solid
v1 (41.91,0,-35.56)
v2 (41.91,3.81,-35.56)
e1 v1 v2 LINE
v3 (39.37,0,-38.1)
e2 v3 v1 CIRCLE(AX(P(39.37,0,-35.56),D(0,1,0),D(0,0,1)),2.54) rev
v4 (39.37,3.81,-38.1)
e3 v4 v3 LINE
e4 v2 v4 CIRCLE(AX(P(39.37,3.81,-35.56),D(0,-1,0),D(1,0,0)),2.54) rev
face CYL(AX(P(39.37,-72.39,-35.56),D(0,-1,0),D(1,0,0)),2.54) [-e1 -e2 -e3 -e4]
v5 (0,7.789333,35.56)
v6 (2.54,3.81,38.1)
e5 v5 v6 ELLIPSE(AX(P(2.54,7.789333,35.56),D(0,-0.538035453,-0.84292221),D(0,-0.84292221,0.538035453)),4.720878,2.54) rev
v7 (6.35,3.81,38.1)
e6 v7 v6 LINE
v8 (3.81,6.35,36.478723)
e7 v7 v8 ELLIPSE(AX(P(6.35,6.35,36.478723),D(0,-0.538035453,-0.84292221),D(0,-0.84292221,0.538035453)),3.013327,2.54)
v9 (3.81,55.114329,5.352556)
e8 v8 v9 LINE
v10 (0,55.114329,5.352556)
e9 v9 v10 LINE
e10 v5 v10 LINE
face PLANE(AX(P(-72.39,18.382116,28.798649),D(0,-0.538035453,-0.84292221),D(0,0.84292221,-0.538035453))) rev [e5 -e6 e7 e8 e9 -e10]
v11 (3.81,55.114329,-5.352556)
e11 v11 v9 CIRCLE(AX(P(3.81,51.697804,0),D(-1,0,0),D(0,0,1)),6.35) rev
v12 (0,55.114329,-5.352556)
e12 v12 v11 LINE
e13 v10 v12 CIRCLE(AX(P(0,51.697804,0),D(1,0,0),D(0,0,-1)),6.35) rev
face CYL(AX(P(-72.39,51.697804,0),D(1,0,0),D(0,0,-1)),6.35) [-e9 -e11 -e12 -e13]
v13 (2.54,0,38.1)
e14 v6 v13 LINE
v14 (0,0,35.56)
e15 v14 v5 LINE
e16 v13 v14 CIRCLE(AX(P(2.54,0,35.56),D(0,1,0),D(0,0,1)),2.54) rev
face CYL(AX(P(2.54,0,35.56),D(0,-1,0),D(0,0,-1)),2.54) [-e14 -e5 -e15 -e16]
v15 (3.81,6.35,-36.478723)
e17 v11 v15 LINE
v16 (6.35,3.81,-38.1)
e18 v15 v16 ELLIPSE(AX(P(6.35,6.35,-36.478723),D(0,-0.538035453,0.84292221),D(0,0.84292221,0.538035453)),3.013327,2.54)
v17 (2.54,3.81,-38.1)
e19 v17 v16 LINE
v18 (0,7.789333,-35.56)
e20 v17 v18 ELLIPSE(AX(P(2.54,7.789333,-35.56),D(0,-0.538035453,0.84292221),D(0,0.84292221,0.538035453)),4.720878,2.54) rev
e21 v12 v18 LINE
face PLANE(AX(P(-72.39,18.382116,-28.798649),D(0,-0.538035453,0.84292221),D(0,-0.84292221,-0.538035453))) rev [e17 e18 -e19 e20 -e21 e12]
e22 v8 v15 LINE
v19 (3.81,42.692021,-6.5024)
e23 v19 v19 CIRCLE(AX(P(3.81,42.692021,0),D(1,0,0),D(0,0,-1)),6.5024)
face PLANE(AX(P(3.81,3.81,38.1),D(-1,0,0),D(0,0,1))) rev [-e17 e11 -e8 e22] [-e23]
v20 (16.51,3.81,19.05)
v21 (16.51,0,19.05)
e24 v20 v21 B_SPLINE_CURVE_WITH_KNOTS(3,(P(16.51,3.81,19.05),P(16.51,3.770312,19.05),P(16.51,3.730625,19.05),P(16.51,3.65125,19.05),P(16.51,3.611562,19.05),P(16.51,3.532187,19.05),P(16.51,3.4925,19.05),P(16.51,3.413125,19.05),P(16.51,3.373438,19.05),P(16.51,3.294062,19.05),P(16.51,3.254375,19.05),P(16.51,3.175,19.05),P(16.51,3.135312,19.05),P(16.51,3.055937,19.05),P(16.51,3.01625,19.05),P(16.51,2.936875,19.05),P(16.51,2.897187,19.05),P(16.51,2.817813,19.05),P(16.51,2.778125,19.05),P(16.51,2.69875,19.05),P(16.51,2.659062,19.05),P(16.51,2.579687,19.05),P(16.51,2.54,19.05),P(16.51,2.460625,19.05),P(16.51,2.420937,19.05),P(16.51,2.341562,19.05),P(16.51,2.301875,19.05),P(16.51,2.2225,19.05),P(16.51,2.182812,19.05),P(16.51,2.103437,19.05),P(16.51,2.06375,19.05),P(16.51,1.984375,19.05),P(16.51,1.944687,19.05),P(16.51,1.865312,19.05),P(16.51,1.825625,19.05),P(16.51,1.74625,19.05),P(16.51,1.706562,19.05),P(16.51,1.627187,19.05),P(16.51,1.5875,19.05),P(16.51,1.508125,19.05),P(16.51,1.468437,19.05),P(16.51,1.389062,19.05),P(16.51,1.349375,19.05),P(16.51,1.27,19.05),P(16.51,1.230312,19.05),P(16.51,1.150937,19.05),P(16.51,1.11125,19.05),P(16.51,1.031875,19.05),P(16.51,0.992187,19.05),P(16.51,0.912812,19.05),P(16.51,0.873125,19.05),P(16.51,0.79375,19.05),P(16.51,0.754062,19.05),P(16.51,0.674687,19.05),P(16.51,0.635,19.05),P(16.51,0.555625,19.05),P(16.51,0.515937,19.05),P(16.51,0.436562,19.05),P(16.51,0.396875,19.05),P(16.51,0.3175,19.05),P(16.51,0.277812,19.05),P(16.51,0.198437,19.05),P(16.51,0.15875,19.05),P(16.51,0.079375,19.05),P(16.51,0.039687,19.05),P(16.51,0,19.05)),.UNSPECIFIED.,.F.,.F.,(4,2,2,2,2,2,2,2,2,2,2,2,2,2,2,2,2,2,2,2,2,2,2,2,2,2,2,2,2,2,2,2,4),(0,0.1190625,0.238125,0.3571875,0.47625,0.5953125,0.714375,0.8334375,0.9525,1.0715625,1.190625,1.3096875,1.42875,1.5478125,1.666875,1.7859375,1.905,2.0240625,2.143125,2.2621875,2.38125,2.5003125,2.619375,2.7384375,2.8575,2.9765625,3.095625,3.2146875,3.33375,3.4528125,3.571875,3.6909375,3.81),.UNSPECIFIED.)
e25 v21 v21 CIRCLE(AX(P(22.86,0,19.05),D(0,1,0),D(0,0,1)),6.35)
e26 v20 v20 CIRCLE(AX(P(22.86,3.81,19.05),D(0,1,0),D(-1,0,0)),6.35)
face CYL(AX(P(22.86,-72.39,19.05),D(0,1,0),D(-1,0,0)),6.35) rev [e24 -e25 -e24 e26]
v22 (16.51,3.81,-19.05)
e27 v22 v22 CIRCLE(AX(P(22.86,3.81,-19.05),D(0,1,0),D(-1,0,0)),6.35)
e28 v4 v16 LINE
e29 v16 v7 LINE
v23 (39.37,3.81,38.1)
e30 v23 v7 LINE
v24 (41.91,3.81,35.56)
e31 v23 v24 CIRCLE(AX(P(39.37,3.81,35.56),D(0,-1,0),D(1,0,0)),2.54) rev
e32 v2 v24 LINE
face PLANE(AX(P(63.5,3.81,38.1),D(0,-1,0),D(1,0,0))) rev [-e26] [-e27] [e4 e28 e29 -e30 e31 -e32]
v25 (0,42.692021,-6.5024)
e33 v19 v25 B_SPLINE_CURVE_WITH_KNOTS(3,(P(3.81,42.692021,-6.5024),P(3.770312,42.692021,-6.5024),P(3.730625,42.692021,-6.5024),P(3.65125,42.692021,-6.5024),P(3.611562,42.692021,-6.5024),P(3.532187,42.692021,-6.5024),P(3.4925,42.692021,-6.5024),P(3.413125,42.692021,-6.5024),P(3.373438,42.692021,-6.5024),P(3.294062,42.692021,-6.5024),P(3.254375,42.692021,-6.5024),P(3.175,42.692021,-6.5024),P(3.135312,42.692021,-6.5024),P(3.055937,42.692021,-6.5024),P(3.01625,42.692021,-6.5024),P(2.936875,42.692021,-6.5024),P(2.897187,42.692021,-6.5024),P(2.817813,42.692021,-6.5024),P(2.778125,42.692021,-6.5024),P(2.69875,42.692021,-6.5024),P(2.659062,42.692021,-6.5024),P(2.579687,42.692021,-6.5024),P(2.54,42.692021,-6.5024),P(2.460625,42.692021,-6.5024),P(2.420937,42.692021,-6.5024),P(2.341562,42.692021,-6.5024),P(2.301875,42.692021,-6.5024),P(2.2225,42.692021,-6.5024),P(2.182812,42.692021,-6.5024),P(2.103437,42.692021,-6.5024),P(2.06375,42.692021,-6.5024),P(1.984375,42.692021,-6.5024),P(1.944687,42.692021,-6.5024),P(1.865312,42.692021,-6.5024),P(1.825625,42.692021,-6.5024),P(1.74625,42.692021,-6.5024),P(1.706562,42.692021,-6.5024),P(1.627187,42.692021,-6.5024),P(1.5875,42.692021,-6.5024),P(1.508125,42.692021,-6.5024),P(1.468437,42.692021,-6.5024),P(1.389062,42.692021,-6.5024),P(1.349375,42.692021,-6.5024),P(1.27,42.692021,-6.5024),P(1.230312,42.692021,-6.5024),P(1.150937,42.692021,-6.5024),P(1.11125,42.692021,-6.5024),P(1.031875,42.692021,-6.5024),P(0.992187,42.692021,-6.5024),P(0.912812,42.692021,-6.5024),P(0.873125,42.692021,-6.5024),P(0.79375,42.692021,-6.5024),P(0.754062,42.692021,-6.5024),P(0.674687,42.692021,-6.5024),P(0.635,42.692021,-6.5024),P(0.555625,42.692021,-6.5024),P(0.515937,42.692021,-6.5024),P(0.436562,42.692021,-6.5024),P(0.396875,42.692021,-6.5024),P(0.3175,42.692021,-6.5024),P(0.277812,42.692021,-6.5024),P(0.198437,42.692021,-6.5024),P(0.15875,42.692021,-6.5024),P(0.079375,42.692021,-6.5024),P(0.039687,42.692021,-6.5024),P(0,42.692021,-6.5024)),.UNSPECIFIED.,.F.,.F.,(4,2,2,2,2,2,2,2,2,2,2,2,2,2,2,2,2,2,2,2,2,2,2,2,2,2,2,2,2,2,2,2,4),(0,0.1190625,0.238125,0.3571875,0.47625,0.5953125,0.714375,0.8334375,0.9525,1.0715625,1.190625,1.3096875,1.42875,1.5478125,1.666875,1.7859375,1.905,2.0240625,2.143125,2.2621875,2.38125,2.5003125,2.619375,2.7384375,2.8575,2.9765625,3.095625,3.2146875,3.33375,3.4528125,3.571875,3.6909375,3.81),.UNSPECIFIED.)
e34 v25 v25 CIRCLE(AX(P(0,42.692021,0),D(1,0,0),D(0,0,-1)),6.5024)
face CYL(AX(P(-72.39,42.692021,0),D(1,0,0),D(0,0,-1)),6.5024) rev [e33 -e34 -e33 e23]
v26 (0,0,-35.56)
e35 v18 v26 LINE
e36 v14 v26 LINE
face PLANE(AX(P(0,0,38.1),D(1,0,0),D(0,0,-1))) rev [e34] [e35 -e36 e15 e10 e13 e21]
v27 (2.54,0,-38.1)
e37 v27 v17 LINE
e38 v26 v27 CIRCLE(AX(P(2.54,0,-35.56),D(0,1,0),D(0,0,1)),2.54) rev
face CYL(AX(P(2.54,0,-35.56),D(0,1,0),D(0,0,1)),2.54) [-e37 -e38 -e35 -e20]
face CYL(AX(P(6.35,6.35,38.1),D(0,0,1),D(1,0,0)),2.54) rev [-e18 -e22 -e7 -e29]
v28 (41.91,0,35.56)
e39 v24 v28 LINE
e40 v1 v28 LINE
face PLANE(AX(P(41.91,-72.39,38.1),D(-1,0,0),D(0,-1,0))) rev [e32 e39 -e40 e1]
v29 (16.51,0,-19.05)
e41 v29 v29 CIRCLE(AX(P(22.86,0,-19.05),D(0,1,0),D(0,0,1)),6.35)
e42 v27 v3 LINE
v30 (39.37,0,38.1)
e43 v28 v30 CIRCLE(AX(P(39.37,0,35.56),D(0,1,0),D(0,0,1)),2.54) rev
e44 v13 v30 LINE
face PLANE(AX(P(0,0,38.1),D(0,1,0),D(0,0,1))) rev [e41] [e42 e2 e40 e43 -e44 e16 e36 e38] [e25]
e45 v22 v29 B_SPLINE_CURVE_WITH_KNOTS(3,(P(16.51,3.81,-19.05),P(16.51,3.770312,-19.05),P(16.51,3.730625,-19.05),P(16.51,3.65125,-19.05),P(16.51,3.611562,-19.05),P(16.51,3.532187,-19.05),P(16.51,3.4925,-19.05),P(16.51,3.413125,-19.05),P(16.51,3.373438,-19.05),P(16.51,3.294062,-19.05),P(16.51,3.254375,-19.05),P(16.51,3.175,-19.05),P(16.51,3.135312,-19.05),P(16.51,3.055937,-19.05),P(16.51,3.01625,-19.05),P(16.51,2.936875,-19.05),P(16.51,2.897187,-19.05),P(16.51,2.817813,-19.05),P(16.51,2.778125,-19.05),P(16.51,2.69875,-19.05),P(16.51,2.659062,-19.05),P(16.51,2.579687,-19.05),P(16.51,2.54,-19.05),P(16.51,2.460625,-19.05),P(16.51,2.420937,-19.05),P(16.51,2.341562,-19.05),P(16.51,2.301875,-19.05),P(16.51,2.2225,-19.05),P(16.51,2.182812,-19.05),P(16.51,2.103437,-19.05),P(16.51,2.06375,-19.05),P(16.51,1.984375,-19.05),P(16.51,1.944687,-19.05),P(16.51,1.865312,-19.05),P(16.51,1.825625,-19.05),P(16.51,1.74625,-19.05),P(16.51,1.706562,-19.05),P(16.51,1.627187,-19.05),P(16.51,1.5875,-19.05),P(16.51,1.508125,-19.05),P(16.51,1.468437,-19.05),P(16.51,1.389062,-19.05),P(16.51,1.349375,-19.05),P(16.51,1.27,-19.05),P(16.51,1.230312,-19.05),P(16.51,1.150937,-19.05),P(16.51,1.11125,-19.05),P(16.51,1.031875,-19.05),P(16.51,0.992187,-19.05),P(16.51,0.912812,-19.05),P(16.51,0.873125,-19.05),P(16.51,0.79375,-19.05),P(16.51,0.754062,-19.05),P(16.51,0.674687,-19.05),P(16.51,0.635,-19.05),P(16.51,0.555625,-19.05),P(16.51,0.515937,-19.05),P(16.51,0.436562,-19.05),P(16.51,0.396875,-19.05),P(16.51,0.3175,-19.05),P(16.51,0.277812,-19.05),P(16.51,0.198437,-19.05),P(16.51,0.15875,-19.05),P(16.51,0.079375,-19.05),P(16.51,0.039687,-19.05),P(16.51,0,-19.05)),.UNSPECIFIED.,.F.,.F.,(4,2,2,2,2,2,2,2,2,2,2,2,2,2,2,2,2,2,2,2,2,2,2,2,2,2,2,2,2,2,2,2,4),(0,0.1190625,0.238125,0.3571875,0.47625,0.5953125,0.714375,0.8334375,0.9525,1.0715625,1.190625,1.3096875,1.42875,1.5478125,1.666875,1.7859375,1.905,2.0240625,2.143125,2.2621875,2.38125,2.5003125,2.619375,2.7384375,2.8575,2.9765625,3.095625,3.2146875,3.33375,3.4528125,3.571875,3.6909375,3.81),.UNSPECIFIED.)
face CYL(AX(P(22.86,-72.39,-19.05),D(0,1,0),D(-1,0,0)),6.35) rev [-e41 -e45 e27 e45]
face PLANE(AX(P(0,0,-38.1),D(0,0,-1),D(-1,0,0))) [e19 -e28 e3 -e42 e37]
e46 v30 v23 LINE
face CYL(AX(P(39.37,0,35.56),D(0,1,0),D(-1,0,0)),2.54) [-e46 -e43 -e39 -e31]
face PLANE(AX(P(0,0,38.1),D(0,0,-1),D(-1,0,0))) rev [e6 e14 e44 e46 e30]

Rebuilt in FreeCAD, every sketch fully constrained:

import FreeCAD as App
import Part
import Sketcher

V = App.Vector
Q = App.Units.Quantity


def edges_at(feature, points):
    """Names of the edges that pass closest to the given points."""
    edges = feature.Shape.Edges
    near = lambda p: min(range(len(edges)), key=lambda i: edges[i].distToShape(Part.Vertex(*p))[0])
    return sorted({f"Edge{near(p) + 1}" for p in points})

doc = App.newDocument("Part")
body = doc.addObject("PartDesign::Body", "Body")

# Sketch on XY plane
sketch1 = body.newObject("Sketcher::SketchObject", "Sketch")
sketch1.AttachmentSupport = (doc.getObject("XY_Plane"), [""])
sketch1.MapMode = "FlatFace"
sketch1.addGeometry(Part.LineSegment(V(0, 63.5, 0), V(0, 0, 0)), False)
sketch1.addGeometry(Part.LineSegment(V(0, 0, 0), V(63.5, 0, 0)), False)
sketch1.addGeometry(Part.LineSegment(V(63.5, 0, 0), V(63.5, 3.8, 0)), False)
sketch1.addGeometry(Part.LineSegment(V(63.5, 3.8, 0), V(3.8, 3.8, 0)), False)
sketch1.addGeometry(Part.LineSegment(V(3.8, 3.8, 0), V(3.8, 63.5, 0)), False)
sketch1.addGeometry(Part.LineSegment(V(3.8, 63.5, 0), V(0, 63.5, 0)), False)
sketch1.addConstraint(Sketcher.Constraint("Coincident", 0, 2, 1, 1))
sketch1.addConstraint(Sketcher.Constraint("Coincident", 1, 2, 2, 1))
sketch1.addConstraint(Sketcher.Constraint("Coincident", 2, 2, 3, 1))
sketch1.addConstraint(Sketcher.Constraint("Coincident", 3, 2, 4, 1))
sketch1.addConstraint(Sketcher.Constraint("Coincident", 4, 2, 5, 1))
sketch1.addConstraint(Sketcher.Constraint("Coincident", 5, 2, 0, 1))
sketch1.addConstraint(Sketcher.Constraint("Vertical", 0))
sketch1.addConstraint(Sketcher.Constraint("Horizontal", 1))
sketch1.addConstraint(Sketcher.Constraint("Vertical", 2))
sketch1.addConstraint(Sketcher.Constraint("Horizontal", 3))
sketch1.addConstraint(Sketcher.Constraint("Vertical", 4))
sketch1.addConstraint(Sketcher.Constraint("Horizontal", 5))
sketch1.addConstraint(Sketcher.Constraint("Coincident", 0, 2, -1, 1))
sketch1.addConstraint(Sketcher.Constraint("Equal", 1, 0))
sketch1.addConstraint(Sketcher.Constraint("Equal", 5, 2))
sketch1.addConstraint(Sketcher.Constraint("DistanceX", 1, 1, 1, 2, Q("2.5 in")))
sketch1.addConstraint(Sketcher.Constraint("DistanceX", 3, 2, 3, 1, Q("2.35 in")))
pad1 = body.newObject("PartDesign::Pad", "Pad")
pad1.Profile = sketch1
pad1.Length = Q("3 in")
pad1.Midplane = True

# Sketch on YZ plane
sketch2 = body.newObject("Sketcher::SketchObject", "Sketch001")
sketch2.AttachmentSupport = (doc.getObject("YZ_Plane"), [""])
sketch2.MapMode = "FlatFace"
sketch2.AttachmentOffset = App.Placement(V(0, 0, 0.15 * 25.4), App.Rotation())
sketch2.addGeometry(Part.LineSegment(V(64, 38, 0), V(4, 38, 0)), False)
sketch2.addGeometry(Part.LineSegment(V(4, 38, 0), V(64, 0, 0)), False)
sketch2.addGeometry(Part.LineSegment(V(64, 0, 0), V(64, 38, 0)), False)
sketch2.addGeometry(Part.LineSegment(V(64, -38, 0), V(64, 0, 0)), False)
sketch2.addGeometry(Part.LineSegment(V(64, 0, 0), V(4, -38, 0)), False)
sketch2.addGeometry(Part.LineSegment(V(4, -38, 0), V(64, -38, 0)), False)
sketch2.addConstraint(Sketcher.Constraint("Coincident", 0, 2, 1, 1))
sketch2.addConstraint(Sketcher.Constraint("Coincident", 1, 2, 2, 1))
sketch2.addConstraint(Sketcher.Constraint("Coincident", 2, 2, 0, 1))
sketch2.addConstraint(Sketcher.Constraint("Coincident", 3, 2, 4, 1))
sketch2.addConstraint(Sketcher.Constraint("Coincident", 4, 2, 5, 1))
sketch2.addConstraint(Sketcher.Constraint("Coincident", 5, 2, 3, 1))
sketch2.addConstraint(Sketcher.Constraint("Horizontal", 0))
sketch2.addConstraint(Sketcher.Constraint("Vertical", 2))
sketch2.addConstraint(Sketcher.Constraint("Vertical", 3))
sketch2.addConstraint(Sketcher.Constraint("Horizontal", 5))
sketch2.addConstraint(Sketcher.Constraint("Coincident", 3, 2, 1, 2))
sketch2.addConstraint(Sketcher.Constraint("Symmetric", 0, 2, 4, 2, -1))
sketch2.addConstraint(Sketcher.Constraint("PointOnObject", 1, 2, -1))
sketch2.addConstraint(Sketcher.Constraint("DistanceY", 2, 1, 2, 2, Q("1.5 in")))
sketch2.addConstraint(Sketcher.Constraint("DistanceX", 0, 2, 0, 1, Q("2.35 in")))
sketch2.addConstraint(Sketcher.Constraint("DistanceX", -1, 1, 1, 2, Q("2.5 in")))
pocket1 = body.newObject("PartDesign::Pocket", "Pocket")
pocket1.Profile = sketch2
pocket1.Length = Q("3 in")
doc.recompute()

fillet = body.newObject("PartDesign::Fillet", "Fillet")
fillet.Base = (pocket1, edges_at(pocket1, [(1.905, 63.5, 0)]))
fillet.Radius = Q("0.25 in")

# Sketch on XZ plane
sketch3 = body.newObject("Sketcher::SketchObject", "Sketch002")
sketch3.AttachmentSupport = (doc.getObject("XZ_Plane"), [""])
sketch3.MapMode = "FlatFace"
sketch3.AttachmentOffset = App.Placement(V(0, 0, -0.15 * 25.4), App.Rotation())
sketch3.addGeometry(Part.LineSegment(V(42, -38, 0), V(42, 38, 0)), False)
sketch3.addGeometry(Part.LineSegment(V(42, 38, 0), V(64, 38, 0)), False)
sketch3.addGeometry(Part.LineSegment(V(64, 38, 0), V(64, -38, 0)), False)
sketch3.addGeometry(Part.LineSegment(V(64, -38, 0), V(42, -38, 0)), False)
sketch3.addConstraint(Sketcher.Constraint("Coincident", 0, 2, 1, 1))
sketch3.addConstraint(Sketcher.Constraint("Coincident", 1, 2, 2, 1))
sketch3.addConstraint(Sketcher.Constraint("Coincident", 2, 2, 3, 1))
sketch3.addConstraint(Sketcher.Constraint("Coincident", 3, 2, 0, 1))
sketch3.addConstraint(Sketcher.Constraint("Vertical", 0))
sketch3.addConstraint(Sketcher.Constraint("Horizontal", 1))
sketch3.addConstraint(Sketcher.Constraint("Vertical", 2))
sketch3.addConstraint(Sketcher.Constraint("Horizontal", 3))
sketch3.addConstraint(Sketcher.Constraint("DistanceY", 0, 1, 0, 2, Q("3 in")))
sketch3.addConstraint(Sketcher.Constraint("DistanceX", 1, 1, 1, 2, Q("0.85 in")))
sketch3.addConstraint(Sketcher.Constraint("DistanceY", -1, 1, 0, 2, Q("1.5 in")))
sketch3.addConstraint(Sketcher.Constraint("DistanceX", -1, 1, 1, 2, Q("2.5 in")))
pocket2 = body.newObject("PartDesign::Pocket", "Pocket001")
pocket2.Profile = sketch3
pocket2.Length = Q("3 in")
pocket2.Reversed = True
doc.recompute()

fillet2 = body.newObject("PartDesign::Fillet", "Fillet001")
fillet2.Base = (pocket2, edges_at(pocket2, [
    (0, 1.905, 38.1),
    (0, 1.905, -38.1),
    (41.91, 1.905, -38.1),
    (41.91, 1.905, 38.1),
]))
fillet2.Radius = Q("0.1 in")
doc.recompute()

fillet3 = body.newObject("PartDesign::Fillet", "Fillet002")
fillet3.Base = (fillet2, edges_at(fillet2, [(3.81, 3.81, 0)]))
fillet3.Radius = Q("0.1 in")

# Sketch on YZ plane
sketch4 = body.newObject("Sketcher::SketchObject", "Sketch003")
sketch4.AttachmentSupport = (doc.getObject("YZ_Plane"), [""])
sketch4.MapMode = "FlatFace"
sketch4.AttachmentOffset = App.Placement(V(0, 0, 0.15 * 25.4), App.Rotation())
sketch4.addGeometry(Part.Circle(V(43, 0, 0), V(0, 0, 1), 7), False)
sketch4.addConstraint(Sketcher.Constraint("PointOnObject", 0, 3, -1))
sketch4.addConstraint(Sketcher.Constraint("Diameter", 0, Q("0.512 in")))
sketch4.addConstraint(Sketcher.Constraint("DistanceX", -1, 1, 0, 3, 42.692021))
pocket3 = body.newObject("PartDesign::Pocket", "Pocket002")
pocket3.Profile = sketch4
pocket3.Length = Q("3 in")

# Sketch on XZ plane
sketch5 = body.newObject("Sketcher::SketchObject", "Sketch004")
sketch5.AttachmentSupport = (doc.getObject("XZ_Plane"), [""])
sketch5.MapMode = "FlatFace"
sketch5.AttachmentOffset = App.Placement(V(0, 0, -0.15 * 25.4), App.Rotation())
sketch5.addGeometry(Part.Circle(V(23, -19, 0), V(0, 0, 1), 6), False)
sketch5.addGeometry(Part.Circle(V(23, 19, 0), V(0, 0, 1), 6), False)
sketch5.addConstraint(Sketcher.Constraint("Equal", 0, 1))
sketch5.addConstraint(Sketcher.Constraint("Symmetric", 0, 3, 1, 3, -1))
sketch5.addConstraint(Sketcher.Constraint("Diameter", 0, Q("0.5 in")))
sketch5.addConstraint(Sketcher.Constraint("DistanceX", -1, 1, 0, 3, Q("0.9 in")))
sketch5.addConstraint(Sketcher.Constraint("DistanceY", 0, 3, 1, 3, Q("1.5 in")))
pocket4 = body.newObject("PartDesign::Pocket", "Pocket003")
pocket4.Profile = sketch5
pocket4.Length = Q("3 in")
pocket4.Reversed = True

doc.recompute()
